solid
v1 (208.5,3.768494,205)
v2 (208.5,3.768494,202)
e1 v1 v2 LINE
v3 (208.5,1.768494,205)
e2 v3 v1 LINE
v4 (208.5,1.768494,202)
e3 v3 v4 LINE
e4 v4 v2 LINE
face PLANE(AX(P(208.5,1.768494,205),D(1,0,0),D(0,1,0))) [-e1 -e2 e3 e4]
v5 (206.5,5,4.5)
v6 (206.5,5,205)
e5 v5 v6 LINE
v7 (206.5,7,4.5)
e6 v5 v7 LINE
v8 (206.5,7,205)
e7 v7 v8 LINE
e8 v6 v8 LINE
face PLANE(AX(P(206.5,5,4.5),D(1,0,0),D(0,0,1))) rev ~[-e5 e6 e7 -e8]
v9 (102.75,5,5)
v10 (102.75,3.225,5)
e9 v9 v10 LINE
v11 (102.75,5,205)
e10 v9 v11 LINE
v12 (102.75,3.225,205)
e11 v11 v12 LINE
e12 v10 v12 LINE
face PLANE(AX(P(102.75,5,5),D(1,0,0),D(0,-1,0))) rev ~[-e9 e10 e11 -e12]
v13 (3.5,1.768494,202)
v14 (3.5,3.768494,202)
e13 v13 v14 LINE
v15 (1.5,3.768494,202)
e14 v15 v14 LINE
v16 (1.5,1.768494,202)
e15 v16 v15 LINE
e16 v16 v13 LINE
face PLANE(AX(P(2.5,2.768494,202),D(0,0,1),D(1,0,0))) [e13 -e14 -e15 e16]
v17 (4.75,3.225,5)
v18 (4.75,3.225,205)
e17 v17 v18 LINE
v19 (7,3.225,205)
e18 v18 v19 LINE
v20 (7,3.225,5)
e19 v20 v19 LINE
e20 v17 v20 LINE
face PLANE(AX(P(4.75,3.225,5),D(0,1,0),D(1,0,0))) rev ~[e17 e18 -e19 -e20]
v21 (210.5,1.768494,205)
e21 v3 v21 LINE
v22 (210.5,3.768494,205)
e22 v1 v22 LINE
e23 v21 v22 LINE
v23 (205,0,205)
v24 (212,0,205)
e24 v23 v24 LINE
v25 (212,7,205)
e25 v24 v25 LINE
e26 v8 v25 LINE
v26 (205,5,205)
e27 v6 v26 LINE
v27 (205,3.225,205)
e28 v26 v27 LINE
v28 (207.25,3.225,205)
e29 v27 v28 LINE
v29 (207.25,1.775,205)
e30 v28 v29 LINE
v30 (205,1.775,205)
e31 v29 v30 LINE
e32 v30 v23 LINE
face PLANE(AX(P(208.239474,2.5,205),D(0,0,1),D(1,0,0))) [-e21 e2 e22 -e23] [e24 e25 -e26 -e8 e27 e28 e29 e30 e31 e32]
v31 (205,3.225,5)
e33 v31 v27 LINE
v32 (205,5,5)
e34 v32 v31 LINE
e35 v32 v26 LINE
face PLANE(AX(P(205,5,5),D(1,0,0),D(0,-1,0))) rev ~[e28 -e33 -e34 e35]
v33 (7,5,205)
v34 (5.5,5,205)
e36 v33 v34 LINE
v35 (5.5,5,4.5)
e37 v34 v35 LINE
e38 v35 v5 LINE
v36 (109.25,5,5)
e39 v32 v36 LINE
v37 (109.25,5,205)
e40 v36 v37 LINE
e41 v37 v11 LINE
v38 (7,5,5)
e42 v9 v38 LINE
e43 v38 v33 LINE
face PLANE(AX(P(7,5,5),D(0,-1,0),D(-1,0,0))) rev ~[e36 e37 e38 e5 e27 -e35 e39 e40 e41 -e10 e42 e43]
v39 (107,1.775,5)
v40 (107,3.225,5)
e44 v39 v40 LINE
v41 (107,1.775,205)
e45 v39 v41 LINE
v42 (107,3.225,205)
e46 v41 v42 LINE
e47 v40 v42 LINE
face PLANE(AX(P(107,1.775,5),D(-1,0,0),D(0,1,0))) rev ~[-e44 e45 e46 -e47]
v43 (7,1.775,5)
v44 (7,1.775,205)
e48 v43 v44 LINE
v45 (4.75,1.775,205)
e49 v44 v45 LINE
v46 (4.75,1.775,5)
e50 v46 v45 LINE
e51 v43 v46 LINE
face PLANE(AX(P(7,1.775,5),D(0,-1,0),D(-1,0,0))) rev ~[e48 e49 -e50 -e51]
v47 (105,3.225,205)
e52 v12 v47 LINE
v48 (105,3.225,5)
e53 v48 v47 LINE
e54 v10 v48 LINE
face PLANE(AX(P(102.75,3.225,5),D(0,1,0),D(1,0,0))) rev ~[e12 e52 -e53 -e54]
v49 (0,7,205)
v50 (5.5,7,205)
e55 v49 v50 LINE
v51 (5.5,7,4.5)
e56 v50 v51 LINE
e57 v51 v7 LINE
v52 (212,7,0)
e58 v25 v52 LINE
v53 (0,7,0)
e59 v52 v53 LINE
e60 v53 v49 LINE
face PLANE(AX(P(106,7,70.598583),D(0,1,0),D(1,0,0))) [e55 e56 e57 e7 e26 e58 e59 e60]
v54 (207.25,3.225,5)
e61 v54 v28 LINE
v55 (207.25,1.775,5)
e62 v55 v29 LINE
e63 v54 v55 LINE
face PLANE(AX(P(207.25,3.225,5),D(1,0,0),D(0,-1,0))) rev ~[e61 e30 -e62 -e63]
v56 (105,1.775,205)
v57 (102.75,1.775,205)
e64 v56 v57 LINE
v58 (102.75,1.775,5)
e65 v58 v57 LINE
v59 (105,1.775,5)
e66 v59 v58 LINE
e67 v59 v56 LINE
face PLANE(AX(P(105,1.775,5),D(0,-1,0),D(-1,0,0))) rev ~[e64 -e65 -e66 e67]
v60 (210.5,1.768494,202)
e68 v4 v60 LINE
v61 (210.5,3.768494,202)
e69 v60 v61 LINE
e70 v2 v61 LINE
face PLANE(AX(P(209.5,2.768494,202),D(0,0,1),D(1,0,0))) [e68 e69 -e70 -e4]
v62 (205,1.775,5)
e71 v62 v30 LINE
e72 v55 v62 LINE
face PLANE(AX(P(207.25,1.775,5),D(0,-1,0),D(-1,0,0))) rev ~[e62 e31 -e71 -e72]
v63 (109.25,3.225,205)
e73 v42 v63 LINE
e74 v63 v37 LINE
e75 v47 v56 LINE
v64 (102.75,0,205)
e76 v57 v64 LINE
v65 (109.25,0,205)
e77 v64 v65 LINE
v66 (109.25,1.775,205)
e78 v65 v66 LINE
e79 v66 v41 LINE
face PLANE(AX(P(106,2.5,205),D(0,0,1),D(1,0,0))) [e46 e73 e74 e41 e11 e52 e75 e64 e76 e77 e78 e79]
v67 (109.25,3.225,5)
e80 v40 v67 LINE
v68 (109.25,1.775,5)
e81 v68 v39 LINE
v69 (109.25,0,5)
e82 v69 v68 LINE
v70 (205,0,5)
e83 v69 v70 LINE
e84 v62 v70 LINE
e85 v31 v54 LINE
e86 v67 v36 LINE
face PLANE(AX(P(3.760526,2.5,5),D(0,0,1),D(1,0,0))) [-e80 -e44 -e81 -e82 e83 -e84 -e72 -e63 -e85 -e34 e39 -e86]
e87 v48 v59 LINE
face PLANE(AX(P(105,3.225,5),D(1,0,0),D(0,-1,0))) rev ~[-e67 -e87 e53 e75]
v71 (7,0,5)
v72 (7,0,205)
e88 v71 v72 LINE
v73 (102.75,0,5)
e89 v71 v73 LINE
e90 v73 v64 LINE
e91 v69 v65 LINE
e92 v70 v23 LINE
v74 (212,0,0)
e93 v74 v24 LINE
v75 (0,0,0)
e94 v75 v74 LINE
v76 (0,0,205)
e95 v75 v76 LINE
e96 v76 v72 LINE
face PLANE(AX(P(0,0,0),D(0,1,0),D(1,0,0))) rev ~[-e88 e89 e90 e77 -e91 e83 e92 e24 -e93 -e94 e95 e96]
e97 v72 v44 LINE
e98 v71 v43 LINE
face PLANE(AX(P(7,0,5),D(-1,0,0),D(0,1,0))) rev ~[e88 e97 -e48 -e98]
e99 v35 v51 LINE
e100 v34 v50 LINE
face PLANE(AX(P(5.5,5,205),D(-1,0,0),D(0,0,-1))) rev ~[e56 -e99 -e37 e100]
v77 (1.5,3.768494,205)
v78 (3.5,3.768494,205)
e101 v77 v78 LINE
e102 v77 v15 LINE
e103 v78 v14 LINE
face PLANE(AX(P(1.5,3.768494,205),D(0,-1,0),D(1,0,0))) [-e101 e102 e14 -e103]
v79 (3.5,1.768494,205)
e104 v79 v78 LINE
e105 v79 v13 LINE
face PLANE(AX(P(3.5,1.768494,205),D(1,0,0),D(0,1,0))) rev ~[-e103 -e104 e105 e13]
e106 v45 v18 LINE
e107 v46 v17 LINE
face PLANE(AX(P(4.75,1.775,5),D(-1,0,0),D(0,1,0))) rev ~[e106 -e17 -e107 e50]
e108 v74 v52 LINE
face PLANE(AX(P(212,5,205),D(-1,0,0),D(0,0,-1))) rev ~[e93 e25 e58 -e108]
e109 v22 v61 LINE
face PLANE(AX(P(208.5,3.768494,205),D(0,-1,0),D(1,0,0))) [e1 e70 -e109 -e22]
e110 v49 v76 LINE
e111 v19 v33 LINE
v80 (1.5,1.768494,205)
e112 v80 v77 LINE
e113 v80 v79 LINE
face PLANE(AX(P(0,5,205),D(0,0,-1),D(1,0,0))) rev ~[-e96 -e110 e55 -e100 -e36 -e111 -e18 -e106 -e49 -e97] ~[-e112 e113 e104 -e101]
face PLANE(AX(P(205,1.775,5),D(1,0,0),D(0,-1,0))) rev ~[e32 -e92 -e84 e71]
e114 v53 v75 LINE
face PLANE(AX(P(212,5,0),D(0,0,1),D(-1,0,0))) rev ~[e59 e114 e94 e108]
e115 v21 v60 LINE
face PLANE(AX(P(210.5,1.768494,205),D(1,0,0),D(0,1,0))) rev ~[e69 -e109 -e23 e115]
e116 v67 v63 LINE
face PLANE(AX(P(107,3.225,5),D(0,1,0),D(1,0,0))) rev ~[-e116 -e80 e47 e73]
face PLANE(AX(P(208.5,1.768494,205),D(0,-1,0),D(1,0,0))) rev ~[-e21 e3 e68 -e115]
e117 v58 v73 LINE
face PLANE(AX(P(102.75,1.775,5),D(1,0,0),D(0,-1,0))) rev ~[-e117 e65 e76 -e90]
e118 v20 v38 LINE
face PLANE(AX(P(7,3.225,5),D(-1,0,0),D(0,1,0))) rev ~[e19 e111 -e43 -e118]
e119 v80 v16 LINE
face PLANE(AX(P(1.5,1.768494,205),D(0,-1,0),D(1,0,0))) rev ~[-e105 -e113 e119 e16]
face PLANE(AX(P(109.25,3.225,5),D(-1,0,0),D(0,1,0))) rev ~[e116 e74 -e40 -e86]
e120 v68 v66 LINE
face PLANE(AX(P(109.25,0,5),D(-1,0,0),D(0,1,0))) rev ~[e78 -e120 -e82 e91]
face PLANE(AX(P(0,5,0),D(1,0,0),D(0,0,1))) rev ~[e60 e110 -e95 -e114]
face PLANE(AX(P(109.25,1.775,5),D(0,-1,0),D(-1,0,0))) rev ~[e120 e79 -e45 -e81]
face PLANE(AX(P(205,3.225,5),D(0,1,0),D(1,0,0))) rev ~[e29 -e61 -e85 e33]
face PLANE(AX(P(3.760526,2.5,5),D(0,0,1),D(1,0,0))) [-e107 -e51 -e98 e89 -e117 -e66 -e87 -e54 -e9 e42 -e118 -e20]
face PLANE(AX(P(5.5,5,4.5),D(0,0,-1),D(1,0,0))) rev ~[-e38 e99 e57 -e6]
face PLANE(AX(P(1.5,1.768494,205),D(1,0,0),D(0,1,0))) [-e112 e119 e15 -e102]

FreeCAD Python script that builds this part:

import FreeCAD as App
import Part
import Sketcher

V = App.Vector

doc = App.newDocument("Part")
body = doc.addObject("PartDesign::Body", "Body")

sketch1 = body.newObject("Sketcher::SketchObject", "Sketch")
sketch1.AttachmentSupport = (doc.getObject("XY_Plane"), [""])
sketch1.MapMode = "FlatFace"
sketch1.addGeometry([
    Part.LineSegment(V(0, 0, 0), V(212, 0, 0)),
    Part.LineSegment(V(212, 0, 0), V(212, 5, 0)),
    Part.LineSegment(V(212, 5, 0), V(0, 5, 0)),
    Part.LineSegment(V(0, 5, 0), V(0, 0, 0)),
], False)
sketch1.addConstraint([
    Sketcher.Constraint("Coincident", 0, 2, 1, 1),
    Sketcher.Constraint("Coincident", 1, 2, 2, 1),
    Sketcher.Constraint("Coincident", 2, 2, 3, 1),
    Sketcher.Constraint("Coincident", 3, 2, 0, 1),
    Sketcher.Constraint("Horizontal", 0),
    Sketcher.Constraint("Vertical", 1),
    Sketcher.Constraint("Horizontal", 2),
    Sketcher.Constraint("Vertical", 3),
    Sketcher.Constraint("Coincident", 3, 2, -1, 1),
    Sketcher.Constraint("DistanceX", 0, 1, 0, 2, 212.0),
    Sketcher.Constraint("DistanceY", 1, 1, 1, 2, 5.0),
])
pad1 = body.newObject("PartDesign::Pad", "Pad")
pad1.Profile = sketch1
pad1.Length = 5

sketch2 = body.newObject("Sketcher::SketchObject", "Sketch001")
sketch2.AttachmentSupport = (doc.getObject("XY_Plane"), [""])
sketch2.MapMode = "FlatFace"
sketch2.AttachmentOffset = App.Placement(V(0, 0, 5), App.Rotation())
sketch2.addGeometry([
    Part.LineSegment(V(7, 3.2, 0), V(7, 5, 0)),
    Part.LineSegment(V(7, 5, 0), V(0, 5, 0)),
    Part.LineSegment(V(0, 5, 0), V(0, 0, 0)),
    Part.LineSegment(V(0, 0, 0), V(7, 0, 0)),
    Part.LineSegment(V(7, 0, 0), V(7, 1.8, 0)),
    Part.LineSegment(V(7, 1.8, 0), V(4.8, 1.8, 0)),
    Part.LineSegment(V(4.8, 1.8, 0), V(4.8, 3.2, 0)),
    Part.LineSegment(V(4.8, 3.2, 0), V(7, 3.2, 0)),
    Part.LineSegment(V(109.2, 3.2, 0), V(109.2, 5, 0)),
    Part.LineSegment(V(109.2, 5, 0), V(102.8, 5, 0)),
    Part.LineSegment(V(102.8, 5, 0), V(102.8, 3.2, 0)),
    Part.LineSegment(V(102.8, 3.2, 0), V(105, 3.2, 0)),
    Part.LineSegment(V(105, 3.2, 0), V(105, 1.8, 0)),
    Part.LineSegment(V(105, 1.8, 0), V(102.8, 1.8, 0)),
    Part.LineSegment(V(102.8, 1.8, 0), V(102.8, 0, 0)),
    Part.LineSegment(V(102.8, 0, 0), V(109.2, 0, 0)),
    Part.LineSegment(V(109.2, 0, 0), V(109.2, 1.8, 0)),
    Part.LineSegment(V(109.2, 1.8, 0), V(107, 1.8, 0)),
    Part.LineSegment(V(107, 1.8, 0), V(107, 3.2, 0)),
    Part.LineSegment(V(107, 3.2, 0), V(109.2, 3.2, 0)),
    Part.LineSegment(V(205, 5, 0), V(205, 3.2, 0)),
    Part.LineSegment(V(205, 3.2, 0), V(207.2, 3.2, 0)),
    Part.LineSegment(V(207.2, 3.2, 0), V(207.2, 1.8, 0)),
    Part.LineSegment(V(207.2, 1.8, 0), V(205, 1.8, 0)),
    Part.LineSegment(V(205, 1.8, 0), V(205, 0, 0)),
    Part.LineSegment(V(205, 0, 0), V(212, 0, 0)),
    Part.LineSegment(V(212, 0, 0), V(212, 5, 0)),
    Part.LineSegment(V(212, 5, 0), V(205, 5, 0)),
], False)
sketch2.addConstraint([
    Sketcher.Constraint("Coincident", 0, 2, 1, 1),
    Sketcher.Constraint("Coincident", 1, 2, 2, 1),
    Sketcher.Constraint("Coincident", 2, 2, 3, 1),
    Sketcher.Constraint("Coincident", 3, 2, 4, 1),
    Sketcher.Constraint("Coincident", 4, 2, 5, 1),
    Sketcher.Constraint("Coincident", 5, 2, 6, 1),
    Sketcher.Constraint("Coincident", 6, 2, 7, 1),
    Sketcher.Constraint("Coincident", 7, 2, 0, 1),
    Sketcher.Constraint("Coincident", 8, 2, 9, 1),
    Sketcher.Constraint("Coincident", 9, 2, 10, 1),
    Sketcher.Constraint("Coincident", 10, 2, 11, 1),
    Sketcher.Constraint("Coincident", 11, 2, 12, 1),
    Sketcher.Constraint("Coincident", 12, 2, 13, 1),
    Sketcher.Constraint("Coincident", 13, 2, 14, 1),
    Sketcher.Constraint("Coincident", 14, 2, 15, 1),
    Sketcher.Constraint("Coincident", 15, 2, 16, 1),
    Sketcher.Constraint("Coincident", 16, 2, 17, 1),
    Sketcher.Constraint("Coincident", 17, 2, 18, 1),
    Sketcher.Constraint("Coincident", 18, 2, 19, 1),
    Sketcher.Constraint("Coincident", 19, 2, 8, 1),
    Sketcher.Constraint("Coincident", 20, 2, 21, 1),
    Sketcher.Constraint("Coincident", 21, 2, 22, 1),
    Sketcher.Constraint("Coincident", 22, 2, 23, 1),
    Sketcher.Constraint("Coincident", 23, 2, 24, 1),
    Sketcher.Constraint("Coincident", 24, 2, 25, 1),
    Sketcher.Constraint("Coincident", 25, 2, 26, 1),
    Sketcher.Constraint("Coincident", 26, 2, 27, 1),
    Sketcher.Constraint("Coincident", 27, 2, 20, 1),
    Sketcher.Constraint("Vertical", 0),
    Sketcher.Constraint("Horizontal", 1),
    Sketcher.Constraint("Vertical", 2),
    Sketcher.Constraint("Horizontal", 3),
    Sketcher.Constraint("Vertical", 4),
    Sketcher.Constraint("Horizontal", 5),
    Sketcher.Constraint("Vertical", 6),
    Sketcher.Constraint("Horizontal", 7),
    Sketcher.Constraint("Vertical", 8),
    Sketcher.Constraint("Horizontal", 9),
    Sketcher.Constraint("Vertical", 10),
    Sketcher.Constraint("Horizontal", 11),
    Sketcher.Constraint("Vertical", 12),
    Sketcher.Constraint("Horizontal", 13),
    Sketcher.Constraint("Vertical", 14),
    Sketcher.Constraint("Horizontal", 15),
    Sketcher.Constraint("Vertical", 16),
    Sketcher.Constraint("Horizontal", 17),
    Sketcher.Constraint("Vertical", 18),
    Sketcher.Constraint("Horizontal", 19),
    Sketcher.Constraint("Vertical", 20),
    Sketcher.Constraint("Horizontal", 21),
    Sketcher.Constraint("Vertical", 22),
    Sketcher.Constraint("Horizontal", 23),
    Sketcher.Constraint("Vertical", 24),
    Sketcher.Constraint("Horizontal", 25),
    Sketcher.Constraint("Vertical", 26),
    Sketcher.Constraint("Horizontal", 27),
    Sketcher.Constraint("Coincident", 2, 2, -1, 1),
    Sketcher.Constraint("PointOnObject", 14, 2, -1),
    Sketcher.Constraint("PointOnObject", 24, 2, -1),
    Sketcher.Constraint("Horizontal", 1, 2, 8, 2),
    Sketcher.Constraint("Horizontal", 7, 2, 10, 2),
    Sketcher.Constraint("Horizontal", 5, 2, 12, 2),
    Sketcher.Constraint("Horizontal", 13, 2, 16, 2),
    Sketcher.Constraint("Horizontal", 11, 2, 18, 2),
    Sketcher.Constraint("Horizontal", 19, 2, 20, 2),
    Sketcher.Constraint("Horizontal", 17, 2, 22, 2),
    Sketcher.Constraint("Horizontal", 9, 2, 26, 2),
    Sketcher.Constraint("Vertical", 0, 2, 3, 2),
    Sketcher.Constraint("Vertical", 10, 2, 13, 2),
    Sketcher.Constraint("Vertical", 8, 2, 15, 2),
    Sketcher.Constraint("Vertical", 20, 2, 23, 2),
    Sketcher.Constraint("Equal", 7, 11),
    Sketcher.Constraint("Equal", 13, 17),
    Sketcher.Constraint("Equal", 19, 21),
    Sketcher.Constraint("Equal", 3, 25),
    Sketcher.Constraint("Equal", 0, 4),
    Sketcher.Constraint("DistanceX", 1, 2, 1, 1, 7.0),
    Sketcher.Constraint("DistanceY", 2, 2, 2, 1, 5.0),
    Sketcher.Constraint("DistanceX", 9, 2, 9, 1, 6.5),
    Sketcher.Constraint("DistanceX", -1, 1, 11, 2, 105.0),
    Sketcher.Constraint("DistanceX", -1, 1, 17, 2, 107.0),
    Sketcher.Constraint("DistanceX", -1, 1, 20, 2, 205.0),
    Sketcher.Constraint("DistanceY", 6, 1, 6, 2, 1.45),
])
pad2 = body.newObject("PartDesign::Pad", "Pad001")
pad2.Profile = sketch2
pad2.Length = 200

sketch3 = body.newObject("Sketcher::SketchObject", "Sketch002")
sketch3.AttachmentSupport = (doc.getObject("XZ_Plane"), [""])
sketch3.MapMode = "FlatFace"
sketch3.AttachmentOffset = App.Placement(V(0, 0, -5), App.Rotation())
sketch3.addGeometry([
    Part.LineSegment(V(6, 205, 0), V(6, 4, 0)),
    Part.LineSegment(V(6, 4, 0), V(206, 4, 0)),
    Part.LineSegment(V(206, 4, 0), V(206, 205, 0)),
    Part.LineSegment(V(206, 205, 0), V(212, 205, 0)),
    Part.LineSegment(V(212, 205, 0), V(212, 0, 0)),
    Part.LineSegment(V(212, 0, 0), V(0, 0, 0)),
    Part.LineSegment(V(0, 0, 0), V(0, 205, 0)),
    Part.LineSegment(V(0, 205, 0), V(6, 205, 0)),
], False)
sketch3.addConstraint([
    Sketcher.Constraint("Coincident", 0, 2, 1, 1),
    Sketcher.Constraint("Coincident", 1, 2, 2, 1),
    Sketcher.Constraint("Coincident", 2, 2, 3, 1),
    Sketcher.Constraint("Coincident", 3, 2, 4, 1),
    Sketcher.Constraint("Coincident", 4, 2, 5, 1),
    Sketcher.Constraint("Coincident", 5, 2, 6, 1),
    Sketcher.Constraint("Coincident", 6, 2, 7, 1),
    Sketcher.Constraint("Coincident", 7, 2, 0, 1),
    Sketcher.Constraint("Vertical", 0),
    Sketcher.Constraint("Horizontal", 1),
    Sketcher.Constraint("Vertical", 2),
    Sketcher.Constraint("Horizontal", 3),
    Sketcher.Constraint("Vertical", 4),
    Sketcher.Constraint("Horizontal", 5),
    Sketcher.Constraint("Vertical", 6),
    Sketcher.Constraint("Horizontal", 7),
    Sketcher.Constraint("Coincident", 5, 2, -1, 1),
    Sketcher.Constraint("Horizontal", 3, 2, 6, 2),
    Sketcher.Constraint("Equal", 3, 7),
    Sketcher.Constraint("DistanceX", 1, 1, 1, 2, 201.0),
    Sketcher.Constraint("DistanceX", 5, 2, 5, 1, 212.0),
    Sketcher.Constraint("DistanceY", 4, 2, 4, 1, 205.0),
    Sketcher.Constraint("DistanceY", 0, 2, 0, 1, 200.5),
])
pad3 = body.newObject("PartDesign::Pad", "Pad002")
pad3.Profile = sketch3
pad3.Length = 2
pad3.Reversed = True

sketch4 = body.newObject("Sketcher::SketchObject", "Sketch003")
sketch4.AttachmentSupport = (doc.getObject("XY_Plane"), [""])
sketch4.MapMode = "FlatFace"
sketch4.AttachmentOffset = App.Placement(V(0, 0, 205), App.Rotation())
sketch4.addGeometry([
    Part.LineSegment(V(208.5, 3.8, 0), V(208.5, 1.8, 0)),
    Part.LineSegment(V(208.5, 1.8, 0), V(210.5, 1.8, 0)),
    Part.LineSegment(V(210.5, 1.8, 0), V(210.5, 3.8, 0)),
    Part.LineSegment(V(210.5, 3.8, 0), V(208.5, 3.8, 0)),
    Part.LineSegment(V(1.5, 3.8, 0), V(1.5, 1.8, 0)),
    Part.LineSegment(V(1.5, 1.8, 0), V(3.5, 1.8, 0)),
    Part.LineSegment(V(3.5, 1.8, 0), V(3.5, 3.8, 0)),
    Part.LineSegment(V(3.5, 3.8, 0), V(1.5, 3.8, 0)),
], False)
sketch4.addConstraint([
    Sketcher.Constraint("Coincident", 0, 2, 1, 1),
    Sketcher.Constraint("Coincident", 1, 2, 2, 1),
    Sketcher.Constraint("Coincident", 2, 2, 3, 1),
    Sketcher.Constraint("Coincident", 3, 2, 0, 1),
    Sketcher.Constraint("Coincident", 4, 2, 5, 1),
    Sketcher.Constraint("Coincident", 5, 2, 6, 1),
    Sketcher.Constraint("Coincident", 6, 2, 7, 1),
    Sketcher.Constraint("Coincident", 7, 2, 4, 1),
    Sketcher.Constraint("Vertical", 0),
    Sketcher.Constraint("Horizontal", 1),
    Sketcher.Constraint("Vertical", 2),
    Sketcher.Constraint("Horizontal", 3),
    Sketcher.Constraint("Vertical", 4),
    Sketcher.Constraint("Horizontal", 5),
    Sketcher.Constraint("Vertical", 6),
    Sketcher.Constraint("Horizontal", 7),
    Sketcher.Constraint("Horizontal", 1, 2, 4, 2),
    Sketcher.Constraint("Horizontal", 3, 2, 6, 2),
    Sketcher.Constraint("Equal", 3, 5),
    Sketcher.Constraint("Equal", 7, 0),
    Sketcher.Constraint("DistanceX", 1, 1, 1, 2, 2.0),
    Sketcher.Constraint("DistanceX", 4, 2, 0, 2, 207.0),
    Sketcher.Constraint("DistanceX", -1, 1, 0, 2, 208.5),
    Sketcher.Constraint("DistanceY", -1, 1, 0, 2, 1.768494),
])
pocket1 = body.newObject("PartDesign::Pocket", "Pocket")
pocket1.Profile = sketch4
pocket1.Length = 3

doc.recompute()
